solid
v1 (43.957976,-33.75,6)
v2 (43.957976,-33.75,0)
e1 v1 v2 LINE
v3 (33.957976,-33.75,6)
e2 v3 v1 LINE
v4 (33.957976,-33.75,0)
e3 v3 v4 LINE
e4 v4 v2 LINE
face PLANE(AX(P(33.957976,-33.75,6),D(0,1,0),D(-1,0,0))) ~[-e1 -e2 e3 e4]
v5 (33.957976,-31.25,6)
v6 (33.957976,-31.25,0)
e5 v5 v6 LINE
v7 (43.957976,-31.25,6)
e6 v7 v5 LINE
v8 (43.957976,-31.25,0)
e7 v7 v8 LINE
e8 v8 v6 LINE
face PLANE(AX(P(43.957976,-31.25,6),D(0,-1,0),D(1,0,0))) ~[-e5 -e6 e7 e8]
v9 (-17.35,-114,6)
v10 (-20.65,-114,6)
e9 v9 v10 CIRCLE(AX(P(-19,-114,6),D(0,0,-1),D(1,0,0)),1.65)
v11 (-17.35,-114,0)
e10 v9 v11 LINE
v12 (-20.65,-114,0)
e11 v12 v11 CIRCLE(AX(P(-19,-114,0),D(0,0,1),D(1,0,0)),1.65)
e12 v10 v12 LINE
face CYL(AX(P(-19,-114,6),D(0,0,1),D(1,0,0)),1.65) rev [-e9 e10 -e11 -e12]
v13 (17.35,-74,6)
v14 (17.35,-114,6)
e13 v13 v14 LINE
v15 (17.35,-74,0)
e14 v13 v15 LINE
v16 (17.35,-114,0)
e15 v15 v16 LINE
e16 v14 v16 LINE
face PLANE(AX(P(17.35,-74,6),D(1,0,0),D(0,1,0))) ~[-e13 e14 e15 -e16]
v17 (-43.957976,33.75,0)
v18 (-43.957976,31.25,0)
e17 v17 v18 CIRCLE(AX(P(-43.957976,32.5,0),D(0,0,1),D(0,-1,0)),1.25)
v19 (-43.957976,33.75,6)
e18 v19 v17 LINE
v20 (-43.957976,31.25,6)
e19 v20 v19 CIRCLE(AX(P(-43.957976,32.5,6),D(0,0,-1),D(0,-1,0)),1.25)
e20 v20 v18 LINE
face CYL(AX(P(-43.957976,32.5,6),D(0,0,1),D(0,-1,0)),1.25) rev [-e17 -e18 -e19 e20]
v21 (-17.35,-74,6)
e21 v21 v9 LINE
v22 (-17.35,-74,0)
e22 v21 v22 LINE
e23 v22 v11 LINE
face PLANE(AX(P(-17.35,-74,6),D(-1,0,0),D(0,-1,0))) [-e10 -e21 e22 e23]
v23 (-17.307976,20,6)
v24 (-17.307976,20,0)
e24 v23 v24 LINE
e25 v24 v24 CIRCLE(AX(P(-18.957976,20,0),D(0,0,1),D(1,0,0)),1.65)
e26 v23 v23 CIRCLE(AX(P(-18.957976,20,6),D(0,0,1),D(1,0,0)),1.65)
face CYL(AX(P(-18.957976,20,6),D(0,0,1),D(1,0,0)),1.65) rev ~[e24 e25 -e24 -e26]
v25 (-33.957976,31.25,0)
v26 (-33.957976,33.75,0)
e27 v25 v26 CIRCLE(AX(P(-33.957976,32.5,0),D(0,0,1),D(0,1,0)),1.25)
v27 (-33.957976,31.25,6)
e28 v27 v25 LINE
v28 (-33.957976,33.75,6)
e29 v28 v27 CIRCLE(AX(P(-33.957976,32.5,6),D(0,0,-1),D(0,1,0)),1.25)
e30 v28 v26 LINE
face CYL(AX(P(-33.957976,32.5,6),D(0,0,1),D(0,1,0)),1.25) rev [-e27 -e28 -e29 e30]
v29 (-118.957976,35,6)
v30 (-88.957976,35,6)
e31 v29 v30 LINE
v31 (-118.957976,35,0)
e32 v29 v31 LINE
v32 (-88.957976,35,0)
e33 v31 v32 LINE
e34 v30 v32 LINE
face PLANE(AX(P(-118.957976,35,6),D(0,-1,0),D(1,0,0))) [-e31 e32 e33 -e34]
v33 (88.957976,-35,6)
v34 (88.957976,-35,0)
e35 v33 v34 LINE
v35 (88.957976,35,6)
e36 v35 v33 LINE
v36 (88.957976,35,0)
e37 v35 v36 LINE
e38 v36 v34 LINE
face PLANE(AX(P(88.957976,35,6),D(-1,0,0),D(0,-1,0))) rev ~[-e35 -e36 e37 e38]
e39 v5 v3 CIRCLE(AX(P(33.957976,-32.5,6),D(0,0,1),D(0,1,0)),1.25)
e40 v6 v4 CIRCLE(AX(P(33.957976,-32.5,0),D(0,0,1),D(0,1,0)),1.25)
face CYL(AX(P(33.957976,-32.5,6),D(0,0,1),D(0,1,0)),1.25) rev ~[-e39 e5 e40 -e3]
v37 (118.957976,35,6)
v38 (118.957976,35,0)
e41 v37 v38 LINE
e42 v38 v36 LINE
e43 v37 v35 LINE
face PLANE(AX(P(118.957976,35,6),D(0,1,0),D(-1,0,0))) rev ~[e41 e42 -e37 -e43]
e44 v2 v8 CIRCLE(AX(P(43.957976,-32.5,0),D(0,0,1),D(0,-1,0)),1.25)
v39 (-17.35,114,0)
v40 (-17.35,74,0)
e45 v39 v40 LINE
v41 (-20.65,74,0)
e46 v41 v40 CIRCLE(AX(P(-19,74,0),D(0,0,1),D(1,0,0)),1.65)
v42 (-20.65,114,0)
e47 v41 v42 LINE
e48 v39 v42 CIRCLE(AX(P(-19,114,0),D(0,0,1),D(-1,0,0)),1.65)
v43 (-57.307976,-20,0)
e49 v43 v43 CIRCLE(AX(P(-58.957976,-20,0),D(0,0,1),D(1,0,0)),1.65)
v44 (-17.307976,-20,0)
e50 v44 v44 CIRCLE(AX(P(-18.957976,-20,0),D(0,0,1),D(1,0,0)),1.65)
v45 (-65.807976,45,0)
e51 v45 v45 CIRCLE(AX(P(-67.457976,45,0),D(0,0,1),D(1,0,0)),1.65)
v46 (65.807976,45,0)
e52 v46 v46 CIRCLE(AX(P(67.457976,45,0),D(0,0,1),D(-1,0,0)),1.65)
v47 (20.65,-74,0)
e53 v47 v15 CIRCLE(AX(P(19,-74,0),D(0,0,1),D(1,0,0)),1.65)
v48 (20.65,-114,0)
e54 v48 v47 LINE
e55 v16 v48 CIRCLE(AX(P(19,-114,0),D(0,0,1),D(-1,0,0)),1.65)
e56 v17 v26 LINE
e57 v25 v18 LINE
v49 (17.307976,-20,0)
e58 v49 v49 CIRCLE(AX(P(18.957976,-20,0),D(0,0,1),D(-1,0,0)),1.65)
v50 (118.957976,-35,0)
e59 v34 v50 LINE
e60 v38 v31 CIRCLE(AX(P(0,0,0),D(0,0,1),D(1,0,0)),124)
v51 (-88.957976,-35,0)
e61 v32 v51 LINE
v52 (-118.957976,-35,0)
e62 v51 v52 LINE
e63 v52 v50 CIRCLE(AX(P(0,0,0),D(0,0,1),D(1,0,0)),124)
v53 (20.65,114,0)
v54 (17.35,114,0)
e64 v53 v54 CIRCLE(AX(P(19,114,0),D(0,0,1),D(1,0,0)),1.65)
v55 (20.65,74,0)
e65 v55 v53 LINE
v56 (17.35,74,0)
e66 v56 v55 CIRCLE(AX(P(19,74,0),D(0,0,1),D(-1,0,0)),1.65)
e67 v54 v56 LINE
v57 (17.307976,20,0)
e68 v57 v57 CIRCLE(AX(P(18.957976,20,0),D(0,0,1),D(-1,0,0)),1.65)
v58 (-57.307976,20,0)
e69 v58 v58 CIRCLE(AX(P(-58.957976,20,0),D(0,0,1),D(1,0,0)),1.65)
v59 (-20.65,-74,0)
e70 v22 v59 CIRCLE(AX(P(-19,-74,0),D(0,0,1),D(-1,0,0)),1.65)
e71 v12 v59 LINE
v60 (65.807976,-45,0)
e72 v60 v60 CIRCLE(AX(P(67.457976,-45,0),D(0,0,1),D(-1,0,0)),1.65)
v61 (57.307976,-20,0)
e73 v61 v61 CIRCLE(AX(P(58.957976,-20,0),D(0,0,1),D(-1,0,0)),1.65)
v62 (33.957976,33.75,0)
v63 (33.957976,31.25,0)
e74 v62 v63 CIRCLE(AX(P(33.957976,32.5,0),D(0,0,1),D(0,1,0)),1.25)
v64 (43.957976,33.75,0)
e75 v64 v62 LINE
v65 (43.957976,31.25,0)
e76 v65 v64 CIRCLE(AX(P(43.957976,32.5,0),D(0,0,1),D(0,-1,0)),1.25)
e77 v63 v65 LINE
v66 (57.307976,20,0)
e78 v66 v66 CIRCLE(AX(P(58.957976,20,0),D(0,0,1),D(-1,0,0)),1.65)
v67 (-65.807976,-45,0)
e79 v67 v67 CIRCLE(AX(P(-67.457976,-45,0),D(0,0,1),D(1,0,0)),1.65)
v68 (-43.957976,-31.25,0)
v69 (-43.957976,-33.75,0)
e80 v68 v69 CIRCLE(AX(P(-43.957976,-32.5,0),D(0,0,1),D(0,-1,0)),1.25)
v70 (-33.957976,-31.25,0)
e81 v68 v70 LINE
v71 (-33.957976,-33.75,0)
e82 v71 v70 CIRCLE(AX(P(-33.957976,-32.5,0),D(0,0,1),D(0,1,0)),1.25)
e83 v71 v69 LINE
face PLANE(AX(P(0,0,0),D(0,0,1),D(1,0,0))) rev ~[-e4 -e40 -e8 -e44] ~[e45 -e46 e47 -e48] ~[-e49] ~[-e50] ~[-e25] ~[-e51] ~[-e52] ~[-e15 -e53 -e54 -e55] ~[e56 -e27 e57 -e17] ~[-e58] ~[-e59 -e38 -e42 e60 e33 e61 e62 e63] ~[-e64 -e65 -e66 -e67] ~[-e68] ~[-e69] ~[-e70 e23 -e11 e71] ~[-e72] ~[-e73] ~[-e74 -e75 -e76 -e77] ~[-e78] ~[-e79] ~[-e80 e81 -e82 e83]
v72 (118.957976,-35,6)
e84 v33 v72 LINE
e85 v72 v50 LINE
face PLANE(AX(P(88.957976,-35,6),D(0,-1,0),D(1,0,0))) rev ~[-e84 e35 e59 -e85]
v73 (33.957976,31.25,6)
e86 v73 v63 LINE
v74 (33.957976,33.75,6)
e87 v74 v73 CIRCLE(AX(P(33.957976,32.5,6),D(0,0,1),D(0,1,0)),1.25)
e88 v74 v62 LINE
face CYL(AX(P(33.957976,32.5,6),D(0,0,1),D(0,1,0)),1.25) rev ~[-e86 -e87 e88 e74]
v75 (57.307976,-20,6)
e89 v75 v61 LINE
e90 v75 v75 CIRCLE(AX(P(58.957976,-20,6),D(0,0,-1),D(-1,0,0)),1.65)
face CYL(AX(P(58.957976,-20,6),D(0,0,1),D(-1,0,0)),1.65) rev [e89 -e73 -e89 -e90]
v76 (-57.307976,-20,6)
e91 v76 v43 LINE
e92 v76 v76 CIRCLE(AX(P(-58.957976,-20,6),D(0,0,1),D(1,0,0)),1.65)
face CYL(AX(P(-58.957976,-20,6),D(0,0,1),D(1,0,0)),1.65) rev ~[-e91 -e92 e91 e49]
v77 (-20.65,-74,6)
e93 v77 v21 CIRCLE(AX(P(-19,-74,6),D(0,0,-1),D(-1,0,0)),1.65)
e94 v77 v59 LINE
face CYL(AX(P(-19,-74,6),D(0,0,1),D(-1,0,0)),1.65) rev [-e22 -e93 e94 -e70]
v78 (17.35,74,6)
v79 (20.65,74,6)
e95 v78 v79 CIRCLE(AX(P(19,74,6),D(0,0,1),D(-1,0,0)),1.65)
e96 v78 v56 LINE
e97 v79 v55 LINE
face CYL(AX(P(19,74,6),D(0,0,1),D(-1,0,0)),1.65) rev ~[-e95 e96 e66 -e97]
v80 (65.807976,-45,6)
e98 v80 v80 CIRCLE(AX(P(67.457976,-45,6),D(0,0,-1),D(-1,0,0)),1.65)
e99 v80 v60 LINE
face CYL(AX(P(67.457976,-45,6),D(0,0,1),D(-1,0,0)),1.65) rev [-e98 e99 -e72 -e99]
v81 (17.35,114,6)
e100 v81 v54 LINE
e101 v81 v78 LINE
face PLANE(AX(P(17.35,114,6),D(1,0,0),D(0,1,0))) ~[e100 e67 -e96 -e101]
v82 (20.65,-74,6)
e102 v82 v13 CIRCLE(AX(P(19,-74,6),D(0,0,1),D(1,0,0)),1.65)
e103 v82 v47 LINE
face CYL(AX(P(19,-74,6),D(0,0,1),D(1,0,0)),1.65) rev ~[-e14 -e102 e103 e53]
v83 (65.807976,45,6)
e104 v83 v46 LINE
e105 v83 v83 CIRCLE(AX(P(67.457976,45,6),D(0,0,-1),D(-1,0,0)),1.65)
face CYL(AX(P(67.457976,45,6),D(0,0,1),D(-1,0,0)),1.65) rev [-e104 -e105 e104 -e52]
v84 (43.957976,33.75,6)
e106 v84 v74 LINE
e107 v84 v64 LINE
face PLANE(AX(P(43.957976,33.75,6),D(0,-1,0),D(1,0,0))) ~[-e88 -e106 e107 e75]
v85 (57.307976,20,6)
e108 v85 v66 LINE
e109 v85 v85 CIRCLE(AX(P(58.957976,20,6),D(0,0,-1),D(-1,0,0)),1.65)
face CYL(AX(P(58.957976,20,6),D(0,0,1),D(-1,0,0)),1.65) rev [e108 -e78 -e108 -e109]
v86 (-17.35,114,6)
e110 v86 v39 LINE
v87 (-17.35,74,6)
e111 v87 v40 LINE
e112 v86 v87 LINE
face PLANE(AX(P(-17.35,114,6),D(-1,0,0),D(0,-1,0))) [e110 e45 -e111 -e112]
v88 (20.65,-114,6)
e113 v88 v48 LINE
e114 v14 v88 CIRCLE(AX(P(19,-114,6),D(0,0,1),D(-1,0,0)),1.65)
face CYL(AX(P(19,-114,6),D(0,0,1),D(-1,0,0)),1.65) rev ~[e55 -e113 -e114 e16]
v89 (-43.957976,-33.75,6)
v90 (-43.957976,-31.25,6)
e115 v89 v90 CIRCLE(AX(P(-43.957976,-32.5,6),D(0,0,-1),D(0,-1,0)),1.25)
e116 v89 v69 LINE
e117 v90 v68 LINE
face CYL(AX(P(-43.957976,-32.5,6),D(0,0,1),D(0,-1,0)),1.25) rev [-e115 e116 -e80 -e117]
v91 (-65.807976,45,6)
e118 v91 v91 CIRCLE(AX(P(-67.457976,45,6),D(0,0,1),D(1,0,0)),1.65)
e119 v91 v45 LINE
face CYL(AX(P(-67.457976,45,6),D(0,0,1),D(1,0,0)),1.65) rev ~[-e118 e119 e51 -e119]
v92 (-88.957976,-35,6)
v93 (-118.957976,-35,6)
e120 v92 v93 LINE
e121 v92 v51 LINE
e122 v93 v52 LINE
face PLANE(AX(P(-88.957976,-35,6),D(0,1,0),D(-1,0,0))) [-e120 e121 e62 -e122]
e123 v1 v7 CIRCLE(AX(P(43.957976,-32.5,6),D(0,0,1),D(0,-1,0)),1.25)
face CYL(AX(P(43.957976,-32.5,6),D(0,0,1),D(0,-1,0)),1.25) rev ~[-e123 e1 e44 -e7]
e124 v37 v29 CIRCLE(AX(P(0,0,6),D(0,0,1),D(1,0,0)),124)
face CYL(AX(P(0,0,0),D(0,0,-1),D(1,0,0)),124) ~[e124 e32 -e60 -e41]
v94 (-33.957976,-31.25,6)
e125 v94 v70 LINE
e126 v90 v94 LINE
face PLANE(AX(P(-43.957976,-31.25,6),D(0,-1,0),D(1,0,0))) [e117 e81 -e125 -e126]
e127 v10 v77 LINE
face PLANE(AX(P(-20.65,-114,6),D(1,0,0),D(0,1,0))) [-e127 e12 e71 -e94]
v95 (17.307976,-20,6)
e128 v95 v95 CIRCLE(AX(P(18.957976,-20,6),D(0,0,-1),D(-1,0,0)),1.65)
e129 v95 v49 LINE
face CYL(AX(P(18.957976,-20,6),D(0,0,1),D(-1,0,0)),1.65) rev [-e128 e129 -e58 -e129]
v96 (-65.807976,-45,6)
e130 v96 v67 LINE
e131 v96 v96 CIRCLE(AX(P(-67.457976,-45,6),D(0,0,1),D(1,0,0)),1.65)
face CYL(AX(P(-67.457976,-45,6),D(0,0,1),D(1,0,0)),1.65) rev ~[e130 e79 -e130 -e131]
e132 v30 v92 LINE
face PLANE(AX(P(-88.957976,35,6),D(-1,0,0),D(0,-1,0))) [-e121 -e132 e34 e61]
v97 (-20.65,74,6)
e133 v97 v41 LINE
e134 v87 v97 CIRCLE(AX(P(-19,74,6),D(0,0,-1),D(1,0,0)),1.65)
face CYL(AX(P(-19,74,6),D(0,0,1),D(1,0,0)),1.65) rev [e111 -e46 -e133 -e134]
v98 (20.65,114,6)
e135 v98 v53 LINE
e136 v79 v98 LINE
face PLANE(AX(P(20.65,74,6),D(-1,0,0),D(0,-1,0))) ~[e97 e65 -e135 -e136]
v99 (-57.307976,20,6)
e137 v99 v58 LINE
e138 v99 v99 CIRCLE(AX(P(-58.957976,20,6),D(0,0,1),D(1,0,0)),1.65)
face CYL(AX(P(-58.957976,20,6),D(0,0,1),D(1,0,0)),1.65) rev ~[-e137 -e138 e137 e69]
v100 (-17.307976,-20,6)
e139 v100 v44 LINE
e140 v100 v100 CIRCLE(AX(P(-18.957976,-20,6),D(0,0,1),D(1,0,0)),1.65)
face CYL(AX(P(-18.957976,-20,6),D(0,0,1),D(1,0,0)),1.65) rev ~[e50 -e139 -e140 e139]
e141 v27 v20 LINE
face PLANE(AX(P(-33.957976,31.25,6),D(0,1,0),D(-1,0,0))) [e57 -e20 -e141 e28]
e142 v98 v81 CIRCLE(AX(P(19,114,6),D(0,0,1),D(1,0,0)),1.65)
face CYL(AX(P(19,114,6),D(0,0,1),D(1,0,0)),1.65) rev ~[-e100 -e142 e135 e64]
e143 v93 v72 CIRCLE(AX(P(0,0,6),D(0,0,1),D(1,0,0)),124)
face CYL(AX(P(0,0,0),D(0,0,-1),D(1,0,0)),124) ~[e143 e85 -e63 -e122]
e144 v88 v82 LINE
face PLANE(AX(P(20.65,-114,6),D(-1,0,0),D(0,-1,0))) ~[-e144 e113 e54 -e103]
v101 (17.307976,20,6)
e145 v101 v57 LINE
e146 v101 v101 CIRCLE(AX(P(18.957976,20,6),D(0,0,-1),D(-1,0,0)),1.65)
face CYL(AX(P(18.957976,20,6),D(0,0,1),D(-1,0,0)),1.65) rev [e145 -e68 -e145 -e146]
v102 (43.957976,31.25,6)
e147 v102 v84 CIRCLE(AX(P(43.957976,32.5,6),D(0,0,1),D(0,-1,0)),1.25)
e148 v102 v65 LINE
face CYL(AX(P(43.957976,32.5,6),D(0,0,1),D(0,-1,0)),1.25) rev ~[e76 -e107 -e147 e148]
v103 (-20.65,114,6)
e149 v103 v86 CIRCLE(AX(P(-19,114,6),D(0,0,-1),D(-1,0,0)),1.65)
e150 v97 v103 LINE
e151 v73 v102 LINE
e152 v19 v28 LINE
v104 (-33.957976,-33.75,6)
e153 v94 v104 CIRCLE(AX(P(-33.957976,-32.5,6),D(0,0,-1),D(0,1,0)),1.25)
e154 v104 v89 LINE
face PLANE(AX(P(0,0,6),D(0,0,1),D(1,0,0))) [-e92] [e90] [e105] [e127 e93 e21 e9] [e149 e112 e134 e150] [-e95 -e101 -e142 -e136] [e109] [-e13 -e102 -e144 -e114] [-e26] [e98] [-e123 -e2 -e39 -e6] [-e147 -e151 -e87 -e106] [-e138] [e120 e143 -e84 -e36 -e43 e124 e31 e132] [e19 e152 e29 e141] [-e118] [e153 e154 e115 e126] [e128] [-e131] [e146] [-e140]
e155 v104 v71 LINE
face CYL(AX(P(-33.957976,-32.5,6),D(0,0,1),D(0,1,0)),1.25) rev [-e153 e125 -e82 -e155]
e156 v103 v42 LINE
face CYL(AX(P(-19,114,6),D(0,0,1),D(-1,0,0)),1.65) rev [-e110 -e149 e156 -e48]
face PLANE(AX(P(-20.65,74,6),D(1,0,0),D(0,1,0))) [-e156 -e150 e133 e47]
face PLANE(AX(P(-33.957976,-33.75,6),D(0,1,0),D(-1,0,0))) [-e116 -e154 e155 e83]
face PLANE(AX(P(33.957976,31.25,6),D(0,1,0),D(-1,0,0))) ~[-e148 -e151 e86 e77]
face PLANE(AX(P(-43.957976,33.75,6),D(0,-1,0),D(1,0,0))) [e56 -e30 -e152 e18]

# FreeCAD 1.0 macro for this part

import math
import FreeCAD as App
import Part
import Sketcher
from FreeCAD import Vector

doc = App.newDocument("Part")
body = doc.addObject("PartDesign::Body", "Body")

# Sketch on XY plane
sketch1 = doc.addObject("Sketcher::SketchObject", "Sketch")
body.addObject(sketch1)
sketch1.AttachmentSupport = (doc.XY_Plane, [""])
sketch1.MapMode = "FlatFace"
sketch1.addGeometry(Part.Circle(Vector(0, 0, 0), Vector(0, 0, 1), 124), False)
sketch1.addConstraint([
    Sketcher.Constraint("Coincident", 0, 3, -1, 1),
    Sketcher.Constraint("Diameter", 0, 248.0),
])
pad1 = doc.addObject("PartDesign::Pad", "Pad")
body.addObject(pad1)
pad1.Profile = sketch1
pad1.Length = 6

# Sketch on XY plane
sketch2 = doc.addObject("Sketcher::SketchObject", "Sketch001")
body.addObject(sketch2)
sketch2.AttachmentSupport = (doc.XY_Plane, [""])
sketch2.MapMode = "FlatFace"
sketch2.AttachmentOffset = App.Placement(Vector(0, 0, 6), App.Rotation())
sketch2.addGeometry([
    Part.LineSegment(Vector(-89, 35, 0), Vector(-119, 35, 0)),  # 0
    Part.ArcOfCircle(Part.Circle(Vector(0, 0, 0), Vector(0, 0, 1), 124), math.radians(164), math.radians(196)),  # 1
    Part.LineSegment(Vector(-119, -35, 0), Vector(-89, -35, 0)),  # 2
    Part.LineSegment(Vector(-89, -35, 0), Vector(-89, 35, 0)),  # 3
    Part.LineSegment(Vector(119, 35, 0), Vector(89, 35, 0)),  # 4
    Part.LineSegment(Vector(89, 35, 0), Vector(89, -35, 0)),  # 5
    Part.LineSegment(Vector(89, -35, 0), Vector(119, -35, 0)),  # 6
    Part.ArcOfCircle(Part.Circle(Vector(0, 0, 0), Vector(0, 0, 1), 124), math.radians(-16), math.radians(16)),  # 7
], False)
sketch2.addConstraint([
    Sketcher.Constraint("Coincident", 0, 2, 1, 1),
    Sketcher.Constraint("Coincident", 1, 2, 2, 1),
    Sketcher.Constraint("Coincident", 2, 2, 3, 1),
    Sketcher.Constraint("Coincident", 3, 2, 0, 1),
    Sketcher.Constraint("Coincident", 4, 2, 5, 1),
    Sketcher.Constraint("Coincident", 5, 2, 6, 1),
    Sketcher.Constraint("Coincident", 6, 2, 7, 1),
    Sketcher.Constraint("Coincident", 7, 2, 4, 1),
    Sketcher.Constraint("Horizontal", 0),
    Sketcher.Constraint("Horizontal", 2),
    Sketcher.Constraint("Vertical", 3),
    Sketcher.Constraint("Horizontal", 4),
    Sketcher.Constraint("Vertical", 5),
    Sketcher.Constraint("Horizontal", 6),
    Sketcher.Constraint("Coincident", 1, 3, -1, 1),
    Sketcher.Constraint("Coincident", 7, 3, -1, 1),
    Sketcher.Constraint("Equal", 1, 7),
    Sketcher.Constraint("Symmetric", 2, 2, 4, 2, -1, 1),
    Sketcher.Constraint("Horizontal", 3, 2, 4, 2),
    Sketcher.Constraint("Horizontal", 2, 2, 5, 2),
    Sketcher.Constraint("Radius", 1, 124.0),
    Sketcher.Constraint("DistanceX", 0, 2, 0, 1, 30.0),
    Sketcher.Constraint("DistanceY", 3, 1, 3, 2, 70.0),
])
pocket1 = doc.addObject("PartDesign::Pocket", "Pocket")
body.addObject(pocket1)
pocket1.Profile = sketch2
pocket1.Type = "ThroughAll"

# Sketch on XY plane
sketch3 = doc.addObject("Sketcher::SketchObject", "Sketch002")
body.addObject(sketch3)
sketch3.AttachmentSupport = (doc.XY_Plane, [""])
sketch3.MapMode = "FlatFace"
sketch3.AttachmentOffset = App.Placement(Vector(0, 0, 6), App.Rotation())
sketch3.addGeometry([
    Part.Circle(Vector(-59, 20, 0), Vector(0, 0, 1), 1.6),
    Part.Circle(Vector(-19, 20, 0), Vector(0, 0, 1), 1.6),
    Part.Circle(Vector(-19, -20, 0), Vector(0, 0, 1), 1.6),
    Part.Circle(Vector(-59, -20, 0), Vector(0, 0, 1), 1.6),
], False)
sketch3.addConstraint([
    Sketcher.Constraint("Equal", 0, 1),
    Sketcher.Constraint("Equal", 1, 2),
    Sketcher.Constraint("Equal", 2, 3),
    Sketcher.Constraint("Symmetric", 1, 3, 2, 3, -1),
    Sketcher.Constraint("Symmetric", 0, 3, 3, 3, -1),
    Sketcher.Constraint("Horizontal", 0, 3, 1, 3),
    Sketcher.Constraint("Diameter", 0, 3.3),
    Sketcher.Constraint("DistanceY", -1, 1, 0, 3, 20.0),
    Sketcher.Constraint("DistanceX", 0, 3, 1, 3, 40.0),
    Sketcher.Constraint("DistanceX", 0, 3, -1, 1, 58.957976),
])
pocket2 = doc.addObject("PartDesign::Pocket", "Pocket001")
body.addObject(pocket2)
pocket2.Profile = sketch3
pocket2.Type = "ThroughAll"

# Sketch on XY plane
sketch4 = doc.addObject("Sketcher::SketchObject", "Sketch003")
body.addObject(sketch4)
sketch4.AttachmentSupport = (doc.XY_Plane, [""])
sketch4.MapMode = "FlatFace"
sketch4.AttachmentOffset = App.Placement(Vector(0, 0, 6), App.Rotation())
sketch4.addGeometry([
    Part.Circle(Vector(-67.5, 45, 0), Vector(0, 0, 1), 1.6),
    Part.Circle(Vector(-67.5, -45, 0), Vector(0, 0, 1), 1.6),
], False)
sketch4.addConstraint([
    Sketcher.Constraint("Equal", 0, 1),
    Sketcher.Constraint("Symmetric", 0, 3, 1, 3, -1),
    Sketcher.Constraint("Diameter", 0, 3.3),
    Sketcher.Constraint("DistanceY", -1, 1, 0, 3, 45.0),
    Sketcher.Constraint("DistanceX", 0, 3, -1, 1, 67.457976),
])
pocket3 = doc.addObject("PartDesign::Pocket", "Pocket002")
body.addObject(pocket3)
pocket3.Profile = sketch4
pocket3.Type = "ThroughAll"

# Sketch on XY plane
sketch5 = doc.addObject("Sketcher::SketchObject", "Sketch004")
body.addObject(sketch5)
sketch5.AttachmentSupport = (doc.XY_Plane, [""])
sketch5.MapMode = "FlatFace"
sketch5.AttachmentOffset = App.Placement(Vector(0, 0, 6), App.Rotation())
sketch5.addGeometry([
    Part.LineSegment(Vector(-34, 33.8, 0), Vector(-44, 33.8, 0)),  # 0
    Part.ArcOfCircle(Part.Circle(Vector(-44, 32.5, 0), Vector(0, 0, 1), 1.2), math.radians(90), math.radians(270)),  # 1
    Part.LineSegment(Vector(-44, 31.2, 0), Vector(-34, 31.2, 0)),  # 2
    Part.ArcOfCircle(Part.Circle(Vector(-34, 32.5, 0), Vector(0, 0, 1), 1.2), math.radians(-90), math.radians(90)),  # 3
    Part.LineSegment(Vector(-34, -31.2, 0), Vector(-44, -31.2, 0)),  # 4
    Part.ArcOfCircle(Part.Circle(Vector(-44, -32.5, 0), Vector(0, 0, 1), 1.2), math.radians(90), math.radians(270)),  # 5
    Part.LineSegment(Vector(-44, -33.8, 0), Vector(-34, -33.8, 0)),  # 6
    Part.ArcOfCircle(Part.Circle(Vector(-34, -32.5, 0), Vector(0, 0, 1), 1.2), math.radians(-90), math.radians(90)),  # 7
], False)
sketch5.addConstraint([
    Sketcher.Constraint("Tangent", 0, 2, 1, 1),
    Sketcher.Constraint("Tangent", 1, 2, 2, 1),
    Sketcher.Constraint("Tangent", 2, 2, 3, 1),
    Sketcher.Constraint("Tangent", 3, 2, 0, 1),
    Sketcher.Constraint("Tangent", 4, 2, 5, 1),
    Sketcher.Constraint("Tangent", 5, 2, 6, 1),
    Sketcher.Constraint("Tangent", 6, 2, 7, 1),
    Sketcher.Constraint("Tangent", 7, 2, 4, 1),
    Sketcher.Constraint("Horizontal", 0),
    Sketcher.Constraint("Horizontal", 2),
    Sketcher.Constraint("Horizontal", 4),
    Sketcher.Constraint("Horizontal", 6),
    Sketcher.Constraint("Equal", 3, 5),
    Sketcher.Constraint("Symmetric", 1, 3, 5, 3, -1),
    Sketcher.Constraint("Vertical", 3, 3, 7, 3),
    Sketcher.Constraint("DistanceX", 0, 2, 0, 1, 10.0),
    Sketcher.Constraint("Radius", 1, 1.25),
    Sketcher.Constraint("DistanceY", 5, 3, 1, 3, 65.0),
    Sketcher.Constraint("DistanceX", 1, 3, -1, 1, 43.957976),
])
pocket4 = doc.addObject("PartDesign::Pocket", "Pocket003")
body.addObject(pocket4)
pocket4.Profile = sketch5
pocket4.Type = "ThroughAll"

# Sketch on XY plane
sketch6 = doc.addObject("Sketcher::SketchObject", "Sketch005")
body.addObject(sketch6)
sketch6.AttachmentSupport = (doc.XY_Plane, [""])
sketch6.MapMode = "FlatFace"
sketch6.AttachmentOffset = App.Placement(Vector(0, 0, 6), App.Rotation())
sketch6.addGeometry([
    Part.LineSegment(Vector(-17.4, 74, 0), Vector(-17.4, 114, 0)),  # 0
    Part.ArcOfCircle(Part.Circle(Vector(-19, 114, 0), Vector(0, 0, 1), 1.6), math.radians(0), math.radians(180)),  # 1
    Part.LineSegment(Vector(-20.6, 114, 0), Vector(-20.6, 74, 0)),  # 2
    Part.ArcOfCircle(Part.Circle(Vector(-19, 74, 0), Vector(0, 0, 1), 1.6), math.radians(180), math.radians(360)),  # 3
    Part.LineSegment(Vector(-17.4, -114, 0), Vector(-17.4, -74, 0)),  # 4
    Part.ArcOfCircle(Part.Circle(Vector(-19, -74, 0), Vector(0, 0, 1), 1.6), math.radians(0), math.radians(180)),  # 5
    Part.LineSegment(Vector(-20.6, -74, 0), Vector(-20.6, -114, 0)),  # 6
    Part.ArcOfCircle(Part.Circle(Vector(-19, -114, 0), Vector(0, 0, 1), 1.6), math.radians(180), math.radians(360)),  # 7
], False)
sketch6.addConstraint([
    Sketcher.Constraint("Tangent", 0, 2, 1, 1),
    Sketcher.Constraint("Tangent", 1, 2, 2, 1),
    Sketcher.Constraint("Tangent", 2, 2, 3, 1),
    Sketcher.Constraint("Tangent", 3, 2, 0, 1),
    Sketcher.Constraint("Tangent", 4, 2, 5, 1),
    Sketcher.Constraint("Tangent", 5, 2, 6, 1),
    Sketcher.Constraint("Tangent", 6, 2, 7, 1),
    Sketcher.Constraint("Tangent", 7, 2, 4, 1),
    Sketcher.Constraint("Vertical", 0),
    Sketcher.Constraint("Vertical", 2),
    Sketcher.Constraint("Vertical", 4),
    Sketcher.Constraint("Vertical", 6),
    Sketcher.Constraint("Equal", 3, 5),
    Sketcher.Constraint("Symmetric", 3, 3, 5, 3, -1),
    Sketcher.Constraint("Equal", 2, 4),
    Sketcher.Constraint("DistanceY", 0, 1, 0, 2, 40.0),
    Sketcher.Constraint("Radius", 1, 1.65),
    Sketcher.Constraint("DistanceX", 1, 3, -1, 1, 19.0),
    Sketcher.Constraint("DistanceY", -1, 1, 1, 3, 114.0),
])
pocket5 = doc.addObject("PartDesign::Pocket", "Pocket004")
body.addObject(pocket5)
pocket5.Profile = sketch6
pocket5.Type = "ThroughAll"
doc.recompute()

mirrored = doc.addObject("PartDesign::Mirrored", "Mirrored")
body.addObject(mirrored)
mirrored.Originals = [pocket2, pocket3, pocket4, pocket5]
mirrored.MirrorPlane = (doc.YZ_Plane, [""])
body.Tip = mirrored

doc.recompute()
